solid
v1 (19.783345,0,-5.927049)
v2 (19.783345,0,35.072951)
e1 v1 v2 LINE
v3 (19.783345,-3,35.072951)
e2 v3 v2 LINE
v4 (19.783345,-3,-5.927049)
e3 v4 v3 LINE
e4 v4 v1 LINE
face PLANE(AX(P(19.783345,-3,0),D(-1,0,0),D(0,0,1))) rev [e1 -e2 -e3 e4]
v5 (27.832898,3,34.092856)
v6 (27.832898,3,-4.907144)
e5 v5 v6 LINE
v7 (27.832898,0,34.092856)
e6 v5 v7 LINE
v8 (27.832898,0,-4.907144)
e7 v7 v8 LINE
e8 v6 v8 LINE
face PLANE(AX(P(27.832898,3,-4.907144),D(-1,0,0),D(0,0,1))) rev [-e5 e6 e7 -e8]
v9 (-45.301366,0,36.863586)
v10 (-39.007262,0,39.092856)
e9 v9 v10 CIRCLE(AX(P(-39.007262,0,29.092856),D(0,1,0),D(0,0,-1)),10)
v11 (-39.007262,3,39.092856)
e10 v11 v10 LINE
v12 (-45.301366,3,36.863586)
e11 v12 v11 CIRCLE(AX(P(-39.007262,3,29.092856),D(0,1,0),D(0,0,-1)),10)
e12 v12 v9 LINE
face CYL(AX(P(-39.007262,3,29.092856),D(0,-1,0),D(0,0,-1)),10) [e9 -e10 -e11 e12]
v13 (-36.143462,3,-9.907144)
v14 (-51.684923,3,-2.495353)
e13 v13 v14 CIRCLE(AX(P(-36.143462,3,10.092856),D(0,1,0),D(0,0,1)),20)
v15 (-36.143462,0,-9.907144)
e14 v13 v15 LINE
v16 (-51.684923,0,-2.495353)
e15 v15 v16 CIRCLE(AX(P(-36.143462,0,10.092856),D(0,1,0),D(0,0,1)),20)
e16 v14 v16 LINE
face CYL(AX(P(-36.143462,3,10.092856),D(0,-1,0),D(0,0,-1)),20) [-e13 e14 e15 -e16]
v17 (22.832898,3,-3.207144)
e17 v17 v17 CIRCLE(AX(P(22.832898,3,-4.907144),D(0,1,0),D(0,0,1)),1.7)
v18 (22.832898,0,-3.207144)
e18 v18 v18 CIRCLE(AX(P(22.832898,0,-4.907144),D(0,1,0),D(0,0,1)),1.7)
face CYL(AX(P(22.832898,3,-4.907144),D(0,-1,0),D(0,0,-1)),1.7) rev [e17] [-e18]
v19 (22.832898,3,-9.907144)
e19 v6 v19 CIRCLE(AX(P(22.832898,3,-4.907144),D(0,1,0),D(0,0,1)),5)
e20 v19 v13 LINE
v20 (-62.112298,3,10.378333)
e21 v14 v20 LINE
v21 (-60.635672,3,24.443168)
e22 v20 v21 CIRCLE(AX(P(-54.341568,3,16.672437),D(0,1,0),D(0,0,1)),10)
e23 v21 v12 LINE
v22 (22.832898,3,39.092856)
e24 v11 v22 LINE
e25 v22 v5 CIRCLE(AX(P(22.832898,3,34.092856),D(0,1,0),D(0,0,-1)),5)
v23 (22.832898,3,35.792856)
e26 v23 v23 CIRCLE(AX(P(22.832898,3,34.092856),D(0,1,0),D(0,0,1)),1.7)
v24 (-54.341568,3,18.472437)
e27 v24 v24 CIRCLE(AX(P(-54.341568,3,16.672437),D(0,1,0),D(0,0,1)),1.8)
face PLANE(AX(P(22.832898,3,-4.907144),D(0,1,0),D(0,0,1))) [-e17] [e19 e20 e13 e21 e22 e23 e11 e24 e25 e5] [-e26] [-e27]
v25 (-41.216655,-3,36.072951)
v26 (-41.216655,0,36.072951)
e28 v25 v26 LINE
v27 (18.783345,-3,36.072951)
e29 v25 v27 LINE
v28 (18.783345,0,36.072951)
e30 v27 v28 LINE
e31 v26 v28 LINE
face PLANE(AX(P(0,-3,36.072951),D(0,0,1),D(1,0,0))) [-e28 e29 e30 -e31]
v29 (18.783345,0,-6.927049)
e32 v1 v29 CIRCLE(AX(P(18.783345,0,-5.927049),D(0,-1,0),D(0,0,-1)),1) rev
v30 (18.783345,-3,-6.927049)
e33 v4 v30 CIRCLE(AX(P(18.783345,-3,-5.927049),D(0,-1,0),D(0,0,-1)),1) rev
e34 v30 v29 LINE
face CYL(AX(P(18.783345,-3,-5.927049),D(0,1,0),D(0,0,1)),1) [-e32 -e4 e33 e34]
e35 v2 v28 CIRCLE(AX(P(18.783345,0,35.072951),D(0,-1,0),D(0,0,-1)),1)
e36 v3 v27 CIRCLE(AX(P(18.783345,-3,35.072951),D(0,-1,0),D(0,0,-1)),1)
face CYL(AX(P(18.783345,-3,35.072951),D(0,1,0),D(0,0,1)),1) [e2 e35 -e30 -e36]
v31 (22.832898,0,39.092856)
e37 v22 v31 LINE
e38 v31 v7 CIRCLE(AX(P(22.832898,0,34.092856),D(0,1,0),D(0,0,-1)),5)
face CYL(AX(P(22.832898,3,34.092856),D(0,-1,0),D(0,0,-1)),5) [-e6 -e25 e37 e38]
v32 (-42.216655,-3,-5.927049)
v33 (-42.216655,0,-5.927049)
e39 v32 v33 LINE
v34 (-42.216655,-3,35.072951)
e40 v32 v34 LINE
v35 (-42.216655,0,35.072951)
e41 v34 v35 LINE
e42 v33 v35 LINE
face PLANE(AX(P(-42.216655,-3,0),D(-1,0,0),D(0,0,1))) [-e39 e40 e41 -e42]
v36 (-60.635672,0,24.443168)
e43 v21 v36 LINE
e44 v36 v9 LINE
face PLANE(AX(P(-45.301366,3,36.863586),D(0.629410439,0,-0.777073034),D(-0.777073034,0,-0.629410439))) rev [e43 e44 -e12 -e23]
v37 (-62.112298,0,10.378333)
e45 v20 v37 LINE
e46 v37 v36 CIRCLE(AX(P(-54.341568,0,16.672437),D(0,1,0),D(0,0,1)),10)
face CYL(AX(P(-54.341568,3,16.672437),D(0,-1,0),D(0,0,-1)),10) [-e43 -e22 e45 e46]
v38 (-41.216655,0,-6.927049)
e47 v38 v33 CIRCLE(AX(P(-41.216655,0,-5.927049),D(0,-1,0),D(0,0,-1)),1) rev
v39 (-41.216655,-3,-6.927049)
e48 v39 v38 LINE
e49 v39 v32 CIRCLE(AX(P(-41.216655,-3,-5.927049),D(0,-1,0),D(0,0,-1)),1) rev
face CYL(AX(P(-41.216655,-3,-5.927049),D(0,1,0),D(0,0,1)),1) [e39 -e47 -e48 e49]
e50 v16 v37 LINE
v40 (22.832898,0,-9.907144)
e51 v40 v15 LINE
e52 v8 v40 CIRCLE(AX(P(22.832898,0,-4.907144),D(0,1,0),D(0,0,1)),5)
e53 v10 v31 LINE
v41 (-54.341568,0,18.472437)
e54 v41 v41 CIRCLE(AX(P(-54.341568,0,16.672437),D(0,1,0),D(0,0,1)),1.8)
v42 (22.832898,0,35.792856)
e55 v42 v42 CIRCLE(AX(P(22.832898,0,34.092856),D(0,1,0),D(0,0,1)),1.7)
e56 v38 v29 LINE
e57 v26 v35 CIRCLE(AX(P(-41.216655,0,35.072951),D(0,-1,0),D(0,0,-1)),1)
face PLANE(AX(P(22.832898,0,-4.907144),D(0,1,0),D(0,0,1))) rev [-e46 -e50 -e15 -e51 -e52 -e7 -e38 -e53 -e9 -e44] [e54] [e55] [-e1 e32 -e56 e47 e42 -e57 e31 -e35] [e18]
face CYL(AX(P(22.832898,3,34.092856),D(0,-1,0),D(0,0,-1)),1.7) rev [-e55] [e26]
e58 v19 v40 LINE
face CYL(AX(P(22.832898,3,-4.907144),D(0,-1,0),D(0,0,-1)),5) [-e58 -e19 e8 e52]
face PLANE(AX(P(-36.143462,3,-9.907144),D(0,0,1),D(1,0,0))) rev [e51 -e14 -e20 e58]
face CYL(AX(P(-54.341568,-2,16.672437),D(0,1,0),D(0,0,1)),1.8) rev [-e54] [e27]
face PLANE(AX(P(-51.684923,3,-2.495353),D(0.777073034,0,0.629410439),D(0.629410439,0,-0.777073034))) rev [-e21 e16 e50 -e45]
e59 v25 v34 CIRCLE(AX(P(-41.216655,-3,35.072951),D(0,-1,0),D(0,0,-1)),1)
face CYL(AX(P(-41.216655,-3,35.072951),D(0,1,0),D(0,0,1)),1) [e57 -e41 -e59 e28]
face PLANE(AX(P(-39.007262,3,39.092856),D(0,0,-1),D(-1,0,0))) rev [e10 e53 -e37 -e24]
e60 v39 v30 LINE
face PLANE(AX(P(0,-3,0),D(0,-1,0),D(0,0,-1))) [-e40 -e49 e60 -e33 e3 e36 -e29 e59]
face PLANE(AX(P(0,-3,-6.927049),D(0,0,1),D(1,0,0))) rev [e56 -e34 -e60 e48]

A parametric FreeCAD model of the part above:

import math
import FreeCAD as App
import Part
import Sketcher
Q = App.Units.Quantity

doc = App.newDocument("Part")
params = doc.addObject("Spreadsheet::Sheet", "Params")
for row, (alias, value) in enumerate([
    ("sketch1_radius", "5 mm"),
    ("sketch1_radius2", "20 mm"),
    ("sketch1_radius3", "10 mm"),
    ("sketch1_diameter", "3.4 mm"),
    ("sketch1_height", "39 mm"),
    ("pad1_length", "3 mm"),
    ("sketch2_radius", "1 mm"),
    ("sketch2_width", "60 mm"),
    ("sketch2_height", "41 mm"),
    ("pad2_length", "3 mm"),
    ("sketch3_diameter", "3.6 mm"),
    ("pocket1_length", "5 mm"),
], start=1):
    params.set(f"A{row}", alias)
    params.set(f"B{row}", "=" + value)
    params.setAlias(f"B{row}", alias)

body = doc.addObject("PartDesign::Body", "Body")

# Sketch on XZ plane
sketch1 = body.newObject("Sketcher::SketchObject", "Sketch")
sketch1.AttachmentSupport = (doc.getObject("XZ_Plane"), [""])
sketch1.MapMode = "FlatFace"
sketch1.addGeometry(Part.LineSegment(App.Vector(-39, 39.1, 0), App.Vector(22.8, 39.1, 0)), False)
sketch1.addGeometry(Part.ArcOfCircle(Part.Circle(App.Vector(22.8, 34.1, 0), App.Vector(0, 0, 1), 5), math.radians(0), math.radians(90)), False)
sketch1.addGeometry(Part.LineSegment(App.Vector(27.8, 34.1, 0), App.Vector(27.8, -4.9, 0)), False)
sketch1.addGeometry(Part.ArcOfCircle(Part.Circle(App.Vector(22.8, -4.9, 0), App.Vector(0, 0, 1), 5), math.radians(-90), math.radians(0)), False)
sketch1.addGeometry(Part.LineSegment(App.Vector(22.8, -9.9, 0), App.Vector(-36.1, -9.9, 0)), False)
sketch1.addGeometry(Part.ArcOfCircle(Part.Circle(App.Vector(-36.1, 10.1, 0), App.Vector(0, 0, 1), 20), math.radians(-141), math.radians(-90)), False)
sketch1.addGeometry(Part.LineSegment(App.Vector(-51.7, -2.5, 0), App.Vector(-62.1, 10.4, 0)), False)
sketch1.addGeometry(Part.ArcOfCircle(Part.Circle(App.Vector(-54.3, 16.7, 0), App.Vector(0, 0, 1), 10), math.radians(129), math.radians(219)), False)
sketch1.addGeometry(Part.LineSegment(App.Vector(-60.6, 24.4, 0), App.Vector(-45.3, 36.9, 0)), False)
sketch1.addGeometry(Part.ArcOfCircle(Part.Circle(App.Vector(-39, 29.1, 0), App.Vector(0, 0, 1), 10), math.radians(90), math.radians(129)), False)
sketch1.addGeometry(Part.Circle(App.Vector(22.8, 34.1, 0), App.Vector(0, 0, 1), 1.7), False)
sketch1.addGeometry(Part.Circle(App.Vector(22.8, -4.9, 0), App.Vector(0, 0, 1), 1.7), False)
sketch1.addConstraint(Sketcher.Constraint("Tangent", 0, 2, 1, 2))
sketch1.addConstraint(Sketcher.Constraint("Tangent", 1, 1, 2, 1))
sketch1.addConstraint(Sketcher.Constraint("Tangent", 2, 2, 3, 2))
sketch1.addConstraint(Sketcher.Constraint("Tangent", 3, 1, 4, 1))
sketch1.addConstraint(Sketcher.Constraint("Tangent", 4, 2, 5, 2))
sketch1.addConstraint(Sketcher.Constraint("Tangent", 5, 1, 6, 1))
sketch1.addConstraint(Sketcher.Constraint("Tangent", 6, 2, 7, 2))
sketch1.addConstraint(Sketcher.Constraint("Tangent", 7, 1, 8, 1))
sketch1.addConstraint(Sketcher.Constraint("Tangent", 8, 2, 9, 2))
sketch1.addConstraint(Sketcher.Constraint("Tangent", 9, 1, 0, 1))
sketch1.addConstraint(Sketcher.Constraint("Horizontal", 0))
sketch1.addConstraint(Sketcher.Constraint("Vertical", 2))
sketch1.addConstraint(Sketcher.Constraint("Horizontal", 4))
sketch1.addConstraint(Sketcher.Constraint("Coincident", 10, 3, 1, 3))
sketch1.addConstraint(Sketcher.Constraint("Coincident", 11, 3, 3, 3))
sketch1.addConstraint(Sketcher.Constraint("Equal", 1, 3))
sketch1.addConstraint(Sketcher.Constraint("Equal", 7, 9))
sketch1.addConstraint(Sketcher.Constraint("Equal", 10, 11))
sketch1.addConstraint(Sketcher.Constraint("Perpendicular", 6, 8))
sketch1.addConstraint(Sketcher.Constraint("Radius", 1, Q("5 mm")))
sketch1.addConstraint(Sketcher.Constraint("Radius", 5, Q("20 mm")))
sketch1.addConstraint(Sketcher.Constraint("Radius", 7, Q("10 mm")))
sketch1.addConstraint(Sketcher.Constraint("Diameter", 10, Q("3.4 mm")))
sketch1.addConstraint(Sketcher.Constraint("DistanceY", 2, 2, 2, 1, Q("39 mm")))
sketch1.addConstraint(Sketcher.Constraint("DistanceX", 0, 1, 0, 2, Q("61.84016 mm")))
sketch1.addConstraint(Sketcher.Constraint("DistanceX", 4, 2, 4, 1, Q("58.97636 mm")))
sketch1.addConstraint(Sketcher.Constraint("DistanceX", -1, 1, 1, 3, Q("22.832898 mm")))
sketch1.addConstraint(Sketcher.Constraint("DistanceX", 6, 2, -1, 1, Q("62.112298 mm")))
sketch1.addConstraint(Sketcher.Constraint("DistanceY", -1, 1, 1, 3, Q("34.092856 mm")))
sketch1.setExpression("Constraints[19]", "Params.sketch1_radius")
sketch1.setExpression("Constraints[20]", "Params.sketch1_radius2")
sketch1.setExpression("Constraints[21]", "Params.sketch1_radius3")
sketch1.setExpression("Constraints[22]", "Params.sketch1_diameter")
sketch1.setExpression("Constraints[23]", "Params.sketch1_height")
pad1 = body.newObject("PartDesign::Pad", "Pad")
pad1.Profile = sketch1
pad1.setExpression("Length", "Params.pad1_length")
pad1.Reversed = True

# Sketch on XZ plane
sketch2 = body.newObject("Sketcher::SketchObject", "Sketch001")
sketch2.AttachmentSupport = (doc.getObject("XZ_Plane"), [""])
sketch2.MapMode = "FlatFace"
sketch2.addGeometry(Part.ArcOfCircle(Part.Circle(App.Vector(-41.2, -5.9, 0), App.Vector(0, 0, 1), 1), math.radians(-180), math.radians(-90)), False)
sketch2.addGeometry(Part.LineSegment(App.Vector(-41.2, -6.9, 0), App.Vector(18.8, -6.9, 0)), False)
sketch2.addGeometry(Part.ArcOfCircle(Part.Circle(App.Vector(18.8, -5.9, 0), App.Vector(0, 0, 1), 1), math.radians(-90), math.radians(0)), False)
sketch2.addGeometry(Part.LineSegment(App.Vector(19.8, -5.9, 0), App.Vector(19.8, 35.1, 0)), False)
sketch2.addGeometry(Part.ArcOfCircle(Part.Circle(App.Vector(18.8, 35.1, 0), App.Vector(0, 0, 1), 1), math.radians(0), math.radians(90)), False)
sketch2.addGeometry(Part.LineSegment(App.Vector(18.8, 36.1, 0), App.Vector(-41.2, 36.1, 0)), False)
sketch2.addGeometry(Part.ArcOfCircle(Part.Circle(App.Vector(-41.2, 35.1, 0), App.Vector(0, 0, 1), 1), math.radians(90), math.radians(180)), False)
sketch2.addGeometry(Part.LineSegment(App.Vector(-42.2, 35.1, 0), App.Vector(-42.2, -5.9, 0)), False)
sketch2.addConstraint(Sketcher.Constraint("Tangent", 0, 2, 1, 1))
sketch2.addConstraint(Sketcher.Constraint("Tangent", 1, 2, 2, 1))
sketch2.addConstraint(Sketcher.Constraint("Tangent", 2, 2, 3, 1))
sketch2.addConstraint(Sketcher.Constraint("Tangent", 3, 2, 4, 1))
sketch2.addConstraint(Sketcher.Constraint("Tangent", 4, 2, 5, 1))
sketch2.addConstraint(Sketcher.Constraint("Tangent", 5, 2, 6, 1))
sketch2.addConstraint(Sketcher.Constraint("Tangent", 6, 2, 7, 1))
sketch2.addConstraint(Sketcher.Constraint("Tangent", 7, 2, 0, 1))
sketch2.addConstraint(Sketcher.Constraint("Horizontal", 1))
sketch2.addConstraint(Sketcher.Constraint("Vertical", 3))
sketch2.addConstraint(Sketcher.Constraint("Horizontal", 5))
sketch2.addConstraint(Sketcher.Constraint("Vertical", 7))
sketch2.addConstraint(Sketcher.Constraint("Equal", 0, 2))
sketch2.addConstraint(Sketcher.Constraint("Equal", 2, 4))
sketch2.addConstraint(Sketcher.Constraint("Equal", 4, 6))
sketch2.addConstraint(Sketcher.Constraint("Radius", 0, Q("1 mm")))
sketch2.addConstraint(Sketcher.Constraint("DistanceX", 1, 1, 1, 2, Q("60 mm")))
sketch2.addConstraint(Sketcher.Constraint("DistanceY", 3, 1, 3, 2, Q("41 mm")))
sketch2.addConstraint(Sketcher.Constraint("DistanceY", 0, 3, -1, 1, Q("5.927049 mm")))
sketch2.addConstraint(Sketcher.Constraint("DistanceX", 0, 3, -1, 1, Q("41.216655 mm")))
sketch2.setExpression("Constraints[15]", "Params.sketch2_radius")
sketch2.setExpression("Constraints[16]", "Params.sketch2_width")
sketch2.setExpression("Constraints[17]", "Params.sketch2_height")
pad2 = body.newObject("PartDesign::Pad", "Pad001")
pad2.Profile = sketch2
pad2.setExpression("Length", "Params.pad2_length")

# Sketch on XZ plane
sketch3 = body.newObject("Sketcher::SketchObject", "Sketch002")
sketch3.AttachmentSupport = (doc.getObject("XZ_Plane"), [""])
sketch3.MapMode = "FlatFace"
sketch3.AttachmentOffset = App.Placement(App.Vector(0, 0, -3), App.Rotation())
sketch3.addGeometry(Part.Circle(App.Vector(-54.3, 16.7, 0), App.Vector(0, 0, 1), 1.8), False)
sketch3.addConstraint(Sketcher.Constraint("Diameter", 0, Q("3.6 mm")))
sketch3.addConstraint(Sketcher.Constraint("DistanceX", 0, 3, -1, 1, Q("54.341568 mm")))
sketch3.addConstraint(Sketcher.Constraint("DistanceY", -1, 1, 0, 3, Q("16.672437 mm")))
sketch3.setExpression("Constraints[0]", "Params.sketch3_diameter")
pocket1 = body.newObject("PartDesign::Pocket", "Pocket")
pocket1.Profile = sketch3
pocket1.setExpression("Length", "Params.pocket1_length")
pocket1.Reversed = True

doc.recompute()
